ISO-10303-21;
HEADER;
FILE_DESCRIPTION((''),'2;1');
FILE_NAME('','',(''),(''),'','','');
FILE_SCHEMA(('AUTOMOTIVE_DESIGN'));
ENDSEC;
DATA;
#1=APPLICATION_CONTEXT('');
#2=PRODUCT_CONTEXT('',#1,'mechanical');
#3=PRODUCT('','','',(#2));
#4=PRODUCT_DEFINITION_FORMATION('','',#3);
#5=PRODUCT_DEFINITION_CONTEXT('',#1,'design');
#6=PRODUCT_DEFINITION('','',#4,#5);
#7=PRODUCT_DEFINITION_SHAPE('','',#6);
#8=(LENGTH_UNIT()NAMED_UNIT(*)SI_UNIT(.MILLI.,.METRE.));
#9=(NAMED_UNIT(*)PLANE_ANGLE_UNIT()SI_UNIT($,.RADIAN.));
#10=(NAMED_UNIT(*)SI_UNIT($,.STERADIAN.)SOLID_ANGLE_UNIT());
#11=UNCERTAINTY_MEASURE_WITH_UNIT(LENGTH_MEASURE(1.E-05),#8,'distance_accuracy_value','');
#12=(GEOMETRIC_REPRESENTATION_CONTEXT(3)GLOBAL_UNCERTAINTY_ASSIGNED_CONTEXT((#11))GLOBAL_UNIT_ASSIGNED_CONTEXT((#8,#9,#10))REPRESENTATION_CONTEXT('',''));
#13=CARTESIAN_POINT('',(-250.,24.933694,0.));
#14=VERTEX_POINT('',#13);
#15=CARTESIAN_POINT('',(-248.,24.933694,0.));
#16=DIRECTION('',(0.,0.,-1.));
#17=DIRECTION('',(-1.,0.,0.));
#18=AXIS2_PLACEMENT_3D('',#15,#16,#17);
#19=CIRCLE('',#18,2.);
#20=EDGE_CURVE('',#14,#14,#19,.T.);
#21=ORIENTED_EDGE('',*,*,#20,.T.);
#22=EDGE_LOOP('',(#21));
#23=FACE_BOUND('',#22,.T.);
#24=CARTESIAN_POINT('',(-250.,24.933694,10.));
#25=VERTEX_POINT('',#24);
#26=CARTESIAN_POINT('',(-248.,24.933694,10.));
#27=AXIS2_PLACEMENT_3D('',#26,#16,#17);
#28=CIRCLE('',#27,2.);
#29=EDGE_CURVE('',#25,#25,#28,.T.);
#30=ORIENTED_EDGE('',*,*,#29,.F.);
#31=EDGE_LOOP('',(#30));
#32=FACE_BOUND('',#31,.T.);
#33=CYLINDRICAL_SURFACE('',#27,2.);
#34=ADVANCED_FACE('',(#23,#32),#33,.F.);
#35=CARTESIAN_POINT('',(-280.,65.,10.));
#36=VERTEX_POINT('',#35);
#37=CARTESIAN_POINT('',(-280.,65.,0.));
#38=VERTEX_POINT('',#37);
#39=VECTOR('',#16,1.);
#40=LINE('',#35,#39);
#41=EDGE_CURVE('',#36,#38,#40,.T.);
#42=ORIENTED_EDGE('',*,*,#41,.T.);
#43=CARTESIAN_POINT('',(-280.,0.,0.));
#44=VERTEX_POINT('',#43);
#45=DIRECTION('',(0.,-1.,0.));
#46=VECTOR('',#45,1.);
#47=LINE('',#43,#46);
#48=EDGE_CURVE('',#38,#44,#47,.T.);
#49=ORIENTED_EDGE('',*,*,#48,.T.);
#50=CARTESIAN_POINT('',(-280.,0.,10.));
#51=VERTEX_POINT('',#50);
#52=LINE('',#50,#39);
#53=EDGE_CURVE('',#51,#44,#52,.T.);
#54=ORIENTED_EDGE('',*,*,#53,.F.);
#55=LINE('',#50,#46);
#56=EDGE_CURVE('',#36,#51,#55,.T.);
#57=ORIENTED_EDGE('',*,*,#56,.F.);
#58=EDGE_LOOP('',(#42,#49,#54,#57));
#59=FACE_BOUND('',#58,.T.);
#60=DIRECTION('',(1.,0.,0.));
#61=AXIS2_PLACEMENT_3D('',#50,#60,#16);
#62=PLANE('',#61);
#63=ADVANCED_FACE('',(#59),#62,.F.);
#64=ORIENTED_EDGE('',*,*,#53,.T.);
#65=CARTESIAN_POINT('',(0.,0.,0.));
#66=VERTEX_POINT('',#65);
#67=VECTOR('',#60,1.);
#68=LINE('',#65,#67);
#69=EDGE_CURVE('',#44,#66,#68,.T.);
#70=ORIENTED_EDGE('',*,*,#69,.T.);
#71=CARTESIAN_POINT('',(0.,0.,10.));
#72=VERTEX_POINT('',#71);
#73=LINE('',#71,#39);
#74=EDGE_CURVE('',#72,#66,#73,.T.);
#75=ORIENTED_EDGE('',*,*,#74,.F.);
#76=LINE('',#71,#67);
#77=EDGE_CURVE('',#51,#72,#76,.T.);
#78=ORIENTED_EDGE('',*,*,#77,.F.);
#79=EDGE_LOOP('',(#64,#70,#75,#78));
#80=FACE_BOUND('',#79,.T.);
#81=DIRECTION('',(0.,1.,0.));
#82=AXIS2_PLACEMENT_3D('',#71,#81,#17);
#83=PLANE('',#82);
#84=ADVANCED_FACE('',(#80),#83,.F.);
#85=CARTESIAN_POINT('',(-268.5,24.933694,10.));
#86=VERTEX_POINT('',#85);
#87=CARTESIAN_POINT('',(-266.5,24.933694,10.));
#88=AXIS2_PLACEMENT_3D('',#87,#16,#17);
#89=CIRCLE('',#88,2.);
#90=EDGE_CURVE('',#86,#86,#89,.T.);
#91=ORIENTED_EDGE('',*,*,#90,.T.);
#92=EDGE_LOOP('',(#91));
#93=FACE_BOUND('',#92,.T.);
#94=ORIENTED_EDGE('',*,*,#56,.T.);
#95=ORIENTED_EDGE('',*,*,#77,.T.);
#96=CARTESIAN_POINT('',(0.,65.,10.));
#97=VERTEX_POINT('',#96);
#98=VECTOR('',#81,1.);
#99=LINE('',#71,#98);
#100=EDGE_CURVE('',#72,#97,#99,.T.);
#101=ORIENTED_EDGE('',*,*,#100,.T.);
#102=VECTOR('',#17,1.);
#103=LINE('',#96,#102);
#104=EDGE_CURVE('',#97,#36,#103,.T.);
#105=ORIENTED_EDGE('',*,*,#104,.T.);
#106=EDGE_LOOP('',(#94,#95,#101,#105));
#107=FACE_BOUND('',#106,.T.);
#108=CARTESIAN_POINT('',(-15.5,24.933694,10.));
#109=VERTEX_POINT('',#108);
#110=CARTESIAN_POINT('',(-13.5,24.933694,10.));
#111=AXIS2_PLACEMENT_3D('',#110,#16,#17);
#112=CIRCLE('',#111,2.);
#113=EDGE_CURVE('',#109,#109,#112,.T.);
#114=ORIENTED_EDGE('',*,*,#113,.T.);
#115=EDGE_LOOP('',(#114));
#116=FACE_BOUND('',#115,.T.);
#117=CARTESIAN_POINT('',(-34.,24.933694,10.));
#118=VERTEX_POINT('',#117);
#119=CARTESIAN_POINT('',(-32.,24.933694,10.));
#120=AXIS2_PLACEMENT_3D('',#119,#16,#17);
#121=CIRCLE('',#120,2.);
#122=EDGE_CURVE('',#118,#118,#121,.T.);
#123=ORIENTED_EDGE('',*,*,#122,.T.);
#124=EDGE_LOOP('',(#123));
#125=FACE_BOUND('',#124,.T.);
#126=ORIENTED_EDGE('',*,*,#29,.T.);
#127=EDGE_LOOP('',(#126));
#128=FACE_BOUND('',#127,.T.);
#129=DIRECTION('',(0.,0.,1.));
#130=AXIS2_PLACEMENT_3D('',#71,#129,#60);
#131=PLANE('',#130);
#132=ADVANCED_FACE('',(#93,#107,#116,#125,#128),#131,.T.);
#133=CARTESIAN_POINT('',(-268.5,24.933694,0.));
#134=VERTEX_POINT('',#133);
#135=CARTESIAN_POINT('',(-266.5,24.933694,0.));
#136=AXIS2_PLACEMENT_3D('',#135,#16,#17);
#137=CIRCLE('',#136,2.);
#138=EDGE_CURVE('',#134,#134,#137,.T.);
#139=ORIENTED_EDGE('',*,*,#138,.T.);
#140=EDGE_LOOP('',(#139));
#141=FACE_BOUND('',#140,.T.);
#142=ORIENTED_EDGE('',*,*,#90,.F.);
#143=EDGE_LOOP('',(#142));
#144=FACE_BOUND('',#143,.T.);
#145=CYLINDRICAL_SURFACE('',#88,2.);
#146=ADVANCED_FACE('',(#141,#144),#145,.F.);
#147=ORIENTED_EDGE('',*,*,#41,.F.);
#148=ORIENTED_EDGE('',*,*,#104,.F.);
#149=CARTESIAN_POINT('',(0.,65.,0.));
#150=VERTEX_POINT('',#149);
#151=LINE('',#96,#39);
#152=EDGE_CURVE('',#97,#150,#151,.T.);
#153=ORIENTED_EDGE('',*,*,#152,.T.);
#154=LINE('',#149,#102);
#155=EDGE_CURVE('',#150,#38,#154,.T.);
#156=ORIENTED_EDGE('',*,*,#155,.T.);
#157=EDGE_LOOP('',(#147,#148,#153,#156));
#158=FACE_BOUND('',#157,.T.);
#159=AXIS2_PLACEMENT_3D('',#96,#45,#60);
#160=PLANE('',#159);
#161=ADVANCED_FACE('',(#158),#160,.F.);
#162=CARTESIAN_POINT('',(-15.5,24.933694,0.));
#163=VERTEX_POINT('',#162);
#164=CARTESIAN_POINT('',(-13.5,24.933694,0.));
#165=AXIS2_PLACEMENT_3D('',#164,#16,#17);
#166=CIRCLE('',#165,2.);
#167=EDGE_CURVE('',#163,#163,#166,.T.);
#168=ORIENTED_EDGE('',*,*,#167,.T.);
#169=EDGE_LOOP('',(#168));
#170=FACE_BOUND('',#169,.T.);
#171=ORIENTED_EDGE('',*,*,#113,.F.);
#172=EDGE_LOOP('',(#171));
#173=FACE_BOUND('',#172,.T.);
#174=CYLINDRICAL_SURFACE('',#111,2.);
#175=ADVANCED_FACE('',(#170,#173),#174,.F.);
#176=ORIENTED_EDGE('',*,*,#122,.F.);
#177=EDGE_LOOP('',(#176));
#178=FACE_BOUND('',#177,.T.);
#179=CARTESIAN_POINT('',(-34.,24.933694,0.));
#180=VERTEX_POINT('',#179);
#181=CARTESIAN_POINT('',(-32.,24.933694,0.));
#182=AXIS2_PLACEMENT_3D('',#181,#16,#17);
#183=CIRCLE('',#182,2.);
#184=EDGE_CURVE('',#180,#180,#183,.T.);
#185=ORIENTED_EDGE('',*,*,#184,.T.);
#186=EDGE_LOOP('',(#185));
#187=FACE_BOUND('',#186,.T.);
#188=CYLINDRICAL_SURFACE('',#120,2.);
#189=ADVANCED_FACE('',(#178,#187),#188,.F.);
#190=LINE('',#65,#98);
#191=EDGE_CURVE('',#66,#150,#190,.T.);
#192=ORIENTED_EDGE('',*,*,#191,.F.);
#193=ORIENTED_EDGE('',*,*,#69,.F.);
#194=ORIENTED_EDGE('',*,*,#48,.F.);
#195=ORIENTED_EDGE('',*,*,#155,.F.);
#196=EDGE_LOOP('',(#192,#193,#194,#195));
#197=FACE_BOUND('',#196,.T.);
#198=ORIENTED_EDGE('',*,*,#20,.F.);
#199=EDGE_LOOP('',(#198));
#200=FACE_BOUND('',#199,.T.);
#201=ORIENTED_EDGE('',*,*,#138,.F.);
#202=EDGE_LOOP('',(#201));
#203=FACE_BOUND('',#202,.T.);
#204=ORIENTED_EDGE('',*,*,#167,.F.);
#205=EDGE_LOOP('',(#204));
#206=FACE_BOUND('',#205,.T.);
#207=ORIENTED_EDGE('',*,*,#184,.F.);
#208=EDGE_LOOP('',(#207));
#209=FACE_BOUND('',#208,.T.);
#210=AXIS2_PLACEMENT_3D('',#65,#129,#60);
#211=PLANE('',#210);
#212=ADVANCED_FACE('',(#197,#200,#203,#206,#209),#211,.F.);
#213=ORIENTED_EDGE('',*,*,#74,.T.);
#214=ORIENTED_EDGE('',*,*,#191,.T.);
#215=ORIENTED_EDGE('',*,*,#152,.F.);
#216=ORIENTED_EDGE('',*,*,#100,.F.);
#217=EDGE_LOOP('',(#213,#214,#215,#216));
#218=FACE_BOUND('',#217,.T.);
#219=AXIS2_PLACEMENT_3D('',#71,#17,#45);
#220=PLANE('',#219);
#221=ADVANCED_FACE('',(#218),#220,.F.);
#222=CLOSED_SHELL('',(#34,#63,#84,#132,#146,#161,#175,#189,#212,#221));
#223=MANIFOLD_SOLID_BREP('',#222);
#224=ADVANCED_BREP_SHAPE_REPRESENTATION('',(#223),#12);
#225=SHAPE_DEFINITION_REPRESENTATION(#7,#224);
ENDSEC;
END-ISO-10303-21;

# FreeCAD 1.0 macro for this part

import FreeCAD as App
import Part
import Sketcher

V = App.Vector
Q = App.Units.Quantity

doc = App.newDocument("Part")
body = doc.addObject("PartDesign::Body", "Body")

sketch1 = doc.addObject("Sketcher::SketchObject", "Sketch")
body.addObject(sketch1)
sketch1.AttachmentSupport = (doc.XY_Plane, [""])
sketch1.MapMode = "FlatFace"
sketch1.addGeometry([
    Part.LineSegment(V(-280, 65, 0), V(-280, 0, 0)),
    Part.LineSegment(V(-280, 0, 0), V(0, 0, 0)),
    Part.LineSegment(V(0, 0, 0), V(0, 65, 0)),
    Part.LineSegment(V(0, 65, 0), V(-280, 65, 0)),
], False)
sketch1.addConstraint([
    Sketcher.Constraint("Coincident", 0, 2, 1, 1),
    Sketcher.Constraint("Coincident", 1, 2, 2, 1),
    Sketcher.Constraint("Coincident", 2, 2, 3, 1),
    Sketcher.Constraint("Coincident", 3, 2, 0, 1),
    Sketcher.Constraint("Vertical", 0),
    Sketcher.Constraint("Horizontal", 1),
    Sketcher.Constraint("Vertical", 2),
    Sketcher.Constraint("Horizontal", 3),
    Sketcher.Constraint("Coincident", 1, 2, -1, 1),
    Sketcher.Constraint("DistanceX", 1, 1, 1, 2, Q("280 mm")),
    Sketcher.Constraint("DistanceY", 0, 2, 0, 1, Q("65 mm")),
])
pad1 = doc.addObject("PartDesign::Pad", "Pad")
body.addObject(pad1)
pad1.Profile = sketch1
pad1.Length = 10

sketch2 = doc.addObject("Sketcher::SketchObject", "Sketch001")
body.addObject(sketch2)
sketch2.AttachmentSupport = (doc.XY_Plane, [""])
sketch2.MapMode = "FlatFace"
sketch2.addGeometry([
    Part.Circle(V(-248, 24.933694, 0), V(0, 0, 1), 2),
    Part.Circle(V(-266.5, 24.933694, 0), V(0, 0, 1), 2),
    Part.Circle(V(-13.5, 24.933694, 0), V(0, 0, 1), 2),
    Part.Circle(V(-32, 24.933694, 0), V(0, 0, 1), 2),
], False)
sketch2.addConstraint([
    Sketcher.Constraint("Equal", 0, 1),
    Sketcher.Constraint("Equal", 1, 2),
    Sketcher.Constraint("Equal", 2, 3),
    Sketcher.Constraint("Horizontal", 0, 3, 1, 3),
    Sketcher.Constraint("Horizontal", 1, 3, 2, 3),
    Sketcher.Constraint("Horizontal", 2, 3, 3, 3),
    Sketcher.Constraint("Diameter", 0, Q("4 mm")),
    Sketcher.Constraint("DistanceX", 0, 3, -1, 1, Q("248 mm")),
    Sketcher.Constraint("DistanceX", 3, 3, -1, 1, Q("32 mm")),
    Sketcher.Constraint("DistanceX", 1, 3, 2, 3, Q("253 mm")),
    Sketcher.Constraint("DistanceX", 1, 3, -1, 1, Q("266.5 mm")),
    Sketcher.Constraint("DistanceY", -1, 1, 0, 3, Q("24.933694 mm")),
])
pocket1 = doc.addObject("PartDesign::Pocket", "Pocket")
body.addObject(pocket1)
pocket1.Profile = sketch2
pocket1.Length = 10
pocket1.Reversed = True

doc.recompute()
